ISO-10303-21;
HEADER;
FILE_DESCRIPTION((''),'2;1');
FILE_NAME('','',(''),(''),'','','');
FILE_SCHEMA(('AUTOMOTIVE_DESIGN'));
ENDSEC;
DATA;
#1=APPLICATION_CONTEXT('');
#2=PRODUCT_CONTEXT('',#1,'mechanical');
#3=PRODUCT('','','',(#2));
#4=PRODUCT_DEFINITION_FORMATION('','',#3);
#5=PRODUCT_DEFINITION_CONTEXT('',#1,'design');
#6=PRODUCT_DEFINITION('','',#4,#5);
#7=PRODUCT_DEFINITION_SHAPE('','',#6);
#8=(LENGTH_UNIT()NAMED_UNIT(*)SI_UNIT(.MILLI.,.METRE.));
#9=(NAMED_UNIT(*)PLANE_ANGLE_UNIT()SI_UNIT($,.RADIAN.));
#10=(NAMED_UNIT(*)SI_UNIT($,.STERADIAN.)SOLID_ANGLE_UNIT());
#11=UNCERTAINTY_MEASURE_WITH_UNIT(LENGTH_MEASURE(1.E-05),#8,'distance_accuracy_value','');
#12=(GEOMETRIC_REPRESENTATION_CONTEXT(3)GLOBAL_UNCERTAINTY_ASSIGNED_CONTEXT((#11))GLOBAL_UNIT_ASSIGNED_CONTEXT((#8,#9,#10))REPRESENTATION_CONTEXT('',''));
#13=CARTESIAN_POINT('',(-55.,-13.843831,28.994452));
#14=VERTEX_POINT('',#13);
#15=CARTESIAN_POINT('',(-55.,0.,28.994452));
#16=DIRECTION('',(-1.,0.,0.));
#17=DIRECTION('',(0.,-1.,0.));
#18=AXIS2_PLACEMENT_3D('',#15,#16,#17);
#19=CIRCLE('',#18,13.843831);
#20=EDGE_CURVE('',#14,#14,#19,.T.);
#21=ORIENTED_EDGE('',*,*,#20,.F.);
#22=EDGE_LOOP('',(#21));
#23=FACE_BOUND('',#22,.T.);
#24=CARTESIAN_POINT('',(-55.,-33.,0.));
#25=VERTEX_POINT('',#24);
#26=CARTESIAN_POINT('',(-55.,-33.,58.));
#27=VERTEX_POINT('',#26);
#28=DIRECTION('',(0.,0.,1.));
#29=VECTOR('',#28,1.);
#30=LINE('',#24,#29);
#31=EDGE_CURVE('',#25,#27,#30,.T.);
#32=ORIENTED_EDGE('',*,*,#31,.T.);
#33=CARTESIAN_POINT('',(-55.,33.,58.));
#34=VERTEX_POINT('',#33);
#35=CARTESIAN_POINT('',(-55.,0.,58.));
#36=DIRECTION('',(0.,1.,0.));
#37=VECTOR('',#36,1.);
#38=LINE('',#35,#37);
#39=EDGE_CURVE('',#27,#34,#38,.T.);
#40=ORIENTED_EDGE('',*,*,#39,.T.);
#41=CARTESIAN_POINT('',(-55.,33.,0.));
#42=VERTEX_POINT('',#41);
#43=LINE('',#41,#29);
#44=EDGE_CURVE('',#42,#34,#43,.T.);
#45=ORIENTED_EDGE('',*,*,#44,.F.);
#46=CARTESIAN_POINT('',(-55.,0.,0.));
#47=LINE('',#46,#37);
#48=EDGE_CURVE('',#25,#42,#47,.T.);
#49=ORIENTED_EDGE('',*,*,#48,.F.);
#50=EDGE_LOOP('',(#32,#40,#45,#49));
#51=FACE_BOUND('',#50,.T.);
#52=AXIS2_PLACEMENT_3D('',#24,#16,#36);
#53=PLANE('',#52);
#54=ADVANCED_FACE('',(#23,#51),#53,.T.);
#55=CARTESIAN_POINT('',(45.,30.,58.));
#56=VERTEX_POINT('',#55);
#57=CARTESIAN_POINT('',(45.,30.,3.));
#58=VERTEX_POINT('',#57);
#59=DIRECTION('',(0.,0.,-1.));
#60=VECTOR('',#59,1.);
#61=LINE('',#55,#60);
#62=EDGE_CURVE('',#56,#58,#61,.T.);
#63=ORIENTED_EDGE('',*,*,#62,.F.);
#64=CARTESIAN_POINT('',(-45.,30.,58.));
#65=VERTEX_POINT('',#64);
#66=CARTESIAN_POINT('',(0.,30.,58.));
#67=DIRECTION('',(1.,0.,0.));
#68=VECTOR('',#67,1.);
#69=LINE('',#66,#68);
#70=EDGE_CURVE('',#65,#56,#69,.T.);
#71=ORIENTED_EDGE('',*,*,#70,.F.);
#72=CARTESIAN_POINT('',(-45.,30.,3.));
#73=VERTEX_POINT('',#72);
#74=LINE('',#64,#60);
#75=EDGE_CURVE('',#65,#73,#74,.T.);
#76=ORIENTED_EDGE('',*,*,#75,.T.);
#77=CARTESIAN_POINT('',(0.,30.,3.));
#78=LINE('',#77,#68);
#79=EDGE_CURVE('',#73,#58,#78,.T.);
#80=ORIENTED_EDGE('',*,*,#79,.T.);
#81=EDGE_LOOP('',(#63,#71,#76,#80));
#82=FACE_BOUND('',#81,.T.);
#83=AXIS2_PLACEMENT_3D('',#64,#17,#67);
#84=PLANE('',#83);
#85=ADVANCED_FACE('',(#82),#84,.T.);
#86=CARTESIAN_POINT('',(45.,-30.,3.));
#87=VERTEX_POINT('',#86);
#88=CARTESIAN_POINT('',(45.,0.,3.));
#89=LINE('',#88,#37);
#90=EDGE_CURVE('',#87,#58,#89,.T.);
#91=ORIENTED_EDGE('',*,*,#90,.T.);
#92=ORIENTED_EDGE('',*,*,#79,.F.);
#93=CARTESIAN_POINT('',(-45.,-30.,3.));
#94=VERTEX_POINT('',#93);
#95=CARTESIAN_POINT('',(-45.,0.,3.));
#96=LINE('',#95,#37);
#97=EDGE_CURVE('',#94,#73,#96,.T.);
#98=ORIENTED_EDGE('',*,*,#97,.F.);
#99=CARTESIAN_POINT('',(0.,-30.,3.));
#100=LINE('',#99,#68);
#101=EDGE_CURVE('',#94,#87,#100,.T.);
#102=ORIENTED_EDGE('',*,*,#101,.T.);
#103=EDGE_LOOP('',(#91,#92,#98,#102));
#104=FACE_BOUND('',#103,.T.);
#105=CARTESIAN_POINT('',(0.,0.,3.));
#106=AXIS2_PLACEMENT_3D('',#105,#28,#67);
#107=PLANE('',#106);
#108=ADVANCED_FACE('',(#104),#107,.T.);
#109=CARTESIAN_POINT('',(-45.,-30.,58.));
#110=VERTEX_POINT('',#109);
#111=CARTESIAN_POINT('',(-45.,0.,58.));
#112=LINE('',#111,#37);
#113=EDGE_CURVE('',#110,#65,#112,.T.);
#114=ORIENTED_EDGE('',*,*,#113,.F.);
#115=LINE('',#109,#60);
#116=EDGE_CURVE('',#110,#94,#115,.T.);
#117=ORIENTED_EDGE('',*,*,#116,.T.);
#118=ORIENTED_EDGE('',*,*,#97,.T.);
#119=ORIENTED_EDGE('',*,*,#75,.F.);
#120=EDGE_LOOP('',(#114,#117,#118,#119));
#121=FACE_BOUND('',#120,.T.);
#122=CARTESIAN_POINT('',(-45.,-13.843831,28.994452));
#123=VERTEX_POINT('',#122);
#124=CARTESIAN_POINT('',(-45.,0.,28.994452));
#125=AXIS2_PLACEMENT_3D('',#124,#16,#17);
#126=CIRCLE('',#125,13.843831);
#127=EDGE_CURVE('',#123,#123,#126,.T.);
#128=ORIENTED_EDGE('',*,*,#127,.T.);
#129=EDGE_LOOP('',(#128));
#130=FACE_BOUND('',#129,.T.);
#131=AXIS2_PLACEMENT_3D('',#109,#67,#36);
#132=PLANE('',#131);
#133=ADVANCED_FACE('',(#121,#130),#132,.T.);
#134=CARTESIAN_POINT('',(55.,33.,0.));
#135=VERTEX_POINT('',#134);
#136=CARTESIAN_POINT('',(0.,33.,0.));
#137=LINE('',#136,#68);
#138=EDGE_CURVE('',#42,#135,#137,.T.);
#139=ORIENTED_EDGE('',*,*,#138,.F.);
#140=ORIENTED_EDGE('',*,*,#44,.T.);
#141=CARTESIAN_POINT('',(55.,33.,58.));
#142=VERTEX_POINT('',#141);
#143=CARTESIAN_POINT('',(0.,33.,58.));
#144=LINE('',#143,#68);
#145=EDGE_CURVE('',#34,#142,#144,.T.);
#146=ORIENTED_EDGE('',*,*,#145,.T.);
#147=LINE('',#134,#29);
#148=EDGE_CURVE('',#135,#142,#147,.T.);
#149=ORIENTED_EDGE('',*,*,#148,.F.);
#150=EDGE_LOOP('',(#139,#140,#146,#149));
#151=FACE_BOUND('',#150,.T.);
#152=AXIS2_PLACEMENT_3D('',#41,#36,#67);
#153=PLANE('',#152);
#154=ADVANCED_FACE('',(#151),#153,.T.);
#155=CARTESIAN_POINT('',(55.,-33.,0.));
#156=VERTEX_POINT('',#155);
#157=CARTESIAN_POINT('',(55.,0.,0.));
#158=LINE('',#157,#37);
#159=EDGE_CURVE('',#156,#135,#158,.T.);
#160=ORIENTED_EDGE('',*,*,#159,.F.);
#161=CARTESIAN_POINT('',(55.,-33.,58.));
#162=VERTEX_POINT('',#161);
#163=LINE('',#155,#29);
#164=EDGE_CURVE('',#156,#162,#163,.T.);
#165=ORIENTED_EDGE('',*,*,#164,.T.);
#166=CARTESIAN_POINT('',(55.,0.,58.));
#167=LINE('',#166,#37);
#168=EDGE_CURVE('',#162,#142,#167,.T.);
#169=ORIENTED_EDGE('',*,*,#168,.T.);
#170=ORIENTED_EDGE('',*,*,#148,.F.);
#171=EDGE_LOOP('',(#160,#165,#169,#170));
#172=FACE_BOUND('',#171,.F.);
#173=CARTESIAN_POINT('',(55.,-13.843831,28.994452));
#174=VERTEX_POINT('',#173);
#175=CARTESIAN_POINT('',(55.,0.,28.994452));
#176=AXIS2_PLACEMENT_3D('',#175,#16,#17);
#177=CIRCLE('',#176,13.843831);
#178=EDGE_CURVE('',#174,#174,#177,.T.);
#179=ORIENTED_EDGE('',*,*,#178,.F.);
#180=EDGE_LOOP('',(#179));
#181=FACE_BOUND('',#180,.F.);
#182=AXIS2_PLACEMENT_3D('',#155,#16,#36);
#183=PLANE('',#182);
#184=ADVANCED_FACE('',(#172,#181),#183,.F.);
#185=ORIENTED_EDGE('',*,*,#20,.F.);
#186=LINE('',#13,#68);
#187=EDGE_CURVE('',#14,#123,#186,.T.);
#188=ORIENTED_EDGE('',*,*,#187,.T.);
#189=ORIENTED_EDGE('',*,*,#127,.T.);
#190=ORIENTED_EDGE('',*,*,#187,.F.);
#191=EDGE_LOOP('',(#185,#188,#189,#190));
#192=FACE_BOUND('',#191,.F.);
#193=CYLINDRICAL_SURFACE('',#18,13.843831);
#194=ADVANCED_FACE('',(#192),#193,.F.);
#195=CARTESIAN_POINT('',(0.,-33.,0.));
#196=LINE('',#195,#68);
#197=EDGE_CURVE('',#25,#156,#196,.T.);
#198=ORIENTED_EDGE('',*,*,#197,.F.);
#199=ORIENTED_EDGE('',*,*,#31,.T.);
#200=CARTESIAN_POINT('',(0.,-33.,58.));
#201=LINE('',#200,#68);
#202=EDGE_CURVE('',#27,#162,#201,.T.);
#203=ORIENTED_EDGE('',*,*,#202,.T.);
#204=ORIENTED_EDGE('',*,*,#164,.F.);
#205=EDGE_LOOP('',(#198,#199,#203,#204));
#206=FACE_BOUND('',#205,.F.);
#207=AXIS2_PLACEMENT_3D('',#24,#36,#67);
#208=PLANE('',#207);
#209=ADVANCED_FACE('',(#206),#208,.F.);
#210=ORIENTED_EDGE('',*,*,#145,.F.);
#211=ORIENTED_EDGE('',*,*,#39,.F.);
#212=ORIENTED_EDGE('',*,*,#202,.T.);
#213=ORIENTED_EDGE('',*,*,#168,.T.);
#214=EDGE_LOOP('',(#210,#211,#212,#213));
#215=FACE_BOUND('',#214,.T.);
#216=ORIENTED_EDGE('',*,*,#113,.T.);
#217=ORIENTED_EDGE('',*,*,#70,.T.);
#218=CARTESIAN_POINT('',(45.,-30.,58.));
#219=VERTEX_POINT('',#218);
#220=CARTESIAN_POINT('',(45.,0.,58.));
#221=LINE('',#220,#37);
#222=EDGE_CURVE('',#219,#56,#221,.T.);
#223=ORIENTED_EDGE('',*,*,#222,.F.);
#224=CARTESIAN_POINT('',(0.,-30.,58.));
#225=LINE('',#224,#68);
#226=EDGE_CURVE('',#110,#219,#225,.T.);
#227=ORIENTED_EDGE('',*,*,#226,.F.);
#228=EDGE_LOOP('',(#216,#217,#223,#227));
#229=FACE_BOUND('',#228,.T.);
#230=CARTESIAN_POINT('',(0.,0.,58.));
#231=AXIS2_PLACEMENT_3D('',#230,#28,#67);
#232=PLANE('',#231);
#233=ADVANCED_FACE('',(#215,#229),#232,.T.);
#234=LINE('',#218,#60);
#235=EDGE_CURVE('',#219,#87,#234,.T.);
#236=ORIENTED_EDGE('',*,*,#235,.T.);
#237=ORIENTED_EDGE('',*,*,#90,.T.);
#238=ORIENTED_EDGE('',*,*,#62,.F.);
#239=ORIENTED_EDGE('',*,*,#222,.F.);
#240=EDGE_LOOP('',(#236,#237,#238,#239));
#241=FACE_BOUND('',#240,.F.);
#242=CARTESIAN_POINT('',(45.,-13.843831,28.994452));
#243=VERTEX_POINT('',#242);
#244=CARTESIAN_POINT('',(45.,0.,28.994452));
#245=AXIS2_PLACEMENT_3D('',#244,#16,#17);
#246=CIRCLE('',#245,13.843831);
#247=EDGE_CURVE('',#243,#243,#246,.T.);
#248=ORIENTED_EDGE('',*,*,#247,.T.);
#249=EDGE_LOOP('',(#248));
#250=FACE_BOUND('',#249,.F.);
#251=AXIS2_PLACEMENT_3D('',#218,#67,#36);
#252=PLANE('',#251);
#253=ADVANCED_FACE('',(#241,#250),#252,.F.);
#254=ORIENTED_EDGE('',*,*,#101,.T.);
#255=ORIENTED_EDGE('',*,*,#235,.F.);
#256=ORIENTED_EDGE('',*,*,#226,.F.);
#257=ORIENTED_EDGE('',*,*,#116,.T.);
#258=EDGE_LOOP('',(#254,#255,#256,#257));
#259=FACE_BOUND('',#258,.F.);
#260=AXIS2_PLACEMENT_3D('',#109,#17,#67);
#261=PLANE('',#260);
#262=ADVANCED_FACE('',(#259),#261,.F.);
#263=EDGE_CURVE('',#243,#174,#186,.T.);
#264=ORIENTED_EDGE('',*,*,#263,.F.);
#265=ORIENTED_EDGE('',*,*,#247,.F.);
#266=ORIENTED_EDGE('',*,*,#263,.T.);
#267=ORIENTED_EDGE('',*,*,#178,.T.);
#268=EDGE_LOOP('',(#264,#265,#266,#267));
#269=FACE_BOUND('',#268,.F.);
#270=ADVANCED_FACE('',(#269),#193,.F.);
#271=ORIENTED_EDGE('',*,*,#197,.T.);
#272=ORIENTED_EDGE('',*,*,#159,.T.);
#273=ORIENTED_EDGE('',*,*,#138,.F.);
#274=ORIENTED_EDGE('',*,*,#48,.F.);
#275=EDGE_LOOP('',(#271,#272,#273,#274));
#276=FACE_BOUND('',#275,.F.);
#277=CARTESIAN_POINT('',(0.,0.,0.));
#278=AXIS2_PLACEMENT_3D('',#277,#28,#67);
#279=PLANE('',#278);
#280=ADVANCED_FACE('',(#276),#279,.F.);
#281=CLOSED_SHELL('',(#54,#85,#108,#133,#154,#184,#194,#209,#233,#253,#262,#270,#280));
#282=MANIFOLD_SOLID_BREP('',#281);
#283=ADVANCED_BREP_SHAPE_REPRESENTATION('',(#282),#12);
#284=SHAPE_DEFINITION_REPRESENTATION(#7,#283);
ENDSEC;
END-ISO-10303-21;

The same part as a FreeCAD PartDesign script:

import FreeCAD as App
import Part
import Sketcher

V = App.Vector
Q = App.Units.Quantity


def add_polygon(sketch, points):
    """Adds a closed chain of lines whose ends are joined by coincident constraints."""
    first, n = sketch.GeometryCount, len(points)
    for a, b in zip(points, points[1:] + points[:1]):
        sketch.addGeometry(Part.LineSegment(App.Vector(*a, 0), App.Vector(*b, 0)), False)
    for i in range(n):
        sketch.addConstraint(Sketcher.Constraint("Coincident", first + i, 2, first + (i + 1) % n, 1))

doc = App.newDocument("Part")
body = doc.addObject("PartDesign::Body", "Body")

# Sketch on XY plane
sketch1 = body.newObject("Sketcher::SketchObject", "Sketch")
sketch1.AttachmentSupport = (doc.getObject("XY_Plane"), [""])
sketch1.MapMode = "FlatFace"
add_polygon(sketch1, [(-55, 33), (-55, -33), (55, -33), (55, 33)])  # lines 0-3
sketch1.addConstraint([
    Sketcher.Constraint("Vertical", 0),
    Sketcher.Constraint("Horizontal", 1),
    Sketcher.Constraint("Vertical", 2),
    Sketcher.Constraint("Horizontal", 3),
    Sketcher.Constraint("Symmetric", 0, 2, 2, 2, -1, 1),
    Sketcher.Constraint("DistanceX", 1, 1, 1, 2, Q("110 mm")),
    Sketcher.Constraint("DistanceY", 0, 2, 0, 1, Q("66 mm")),
])
pad1 = body.newObject("PartDesign::Pad", "Pad")
pad1.Profile = sketch1
pad1.Length = 58

# Sketch on XY plane
sketch2 = body.newObject("Sketcher::SketchObject", "Sketch001")
sketch2.AttachmentSupport = (doc.getObject("XY_Plane"), [""])
sketch2.MapMode = "FlatFace"
sketch2.AttachmentOffset = App.Placement(V(0, 0, 58), App.Rotation())
add_polygon(sketch2, [(-45, 30), (-45, -30), (45, -30), (45, 30)])  # lines 0-3
sketch2.addConstraint([
    Sketcher.Constraint("Vertical", 0),
    Sketcher.Constraint("Horizontal", 1),
    Sketcher.Constraint("Vertical", 2),
    Sketcher.Constraint("Horizontal", 3),
    Sketcher.Constraint("Symmetric", 0, 2, 2, 2, -1, 1),
    Sketcher.Constraint("DistanceX", 1, 1, 1, 2, Q("90 mm")),
    Sketcher.Constraint("DistanceY", 0, 2, 0, 1, Q("60 mm")),
])
pocket1 = body.newObject("PartDesign::Pocket", "Pocket")
pocket1.Profile = sketch2
pocket1.Length = 55

# Sketch on YZ plane
sketch3 = body.newObject("Sketcher::SketchObject", "Sketch002")
sketch3.AttachmentSupport = (doc.getObject("YZ_Plane"), [""])
sketch3.MapMode = "FlatFace"
sketch3.AttachmentOffset = App.Placement(V(0, 0, -55), App.Rotation())
sketch3.addGeometry(Part.Circle(V(0, 29, 0), V(0, 0, 1), 14), False)
sketch3.addConstraint([
    Sketcher.Constraint("PointOnObject", 0, 3, -2),
    Sketcher.Constraint("Diameter", 0, Q("27.687662 mm")),
    Sketcher.Constraint("DistanceY", -1, 1, 0, 3, Q("28.994452 mm")),
])
pocket2 = body.newObject("PartDesign::Pocket", "Pocket001")
pocket2.Profile = sketch3
pocket2.Length = 115
pocket2.Reversed = True

doc.recompute()
